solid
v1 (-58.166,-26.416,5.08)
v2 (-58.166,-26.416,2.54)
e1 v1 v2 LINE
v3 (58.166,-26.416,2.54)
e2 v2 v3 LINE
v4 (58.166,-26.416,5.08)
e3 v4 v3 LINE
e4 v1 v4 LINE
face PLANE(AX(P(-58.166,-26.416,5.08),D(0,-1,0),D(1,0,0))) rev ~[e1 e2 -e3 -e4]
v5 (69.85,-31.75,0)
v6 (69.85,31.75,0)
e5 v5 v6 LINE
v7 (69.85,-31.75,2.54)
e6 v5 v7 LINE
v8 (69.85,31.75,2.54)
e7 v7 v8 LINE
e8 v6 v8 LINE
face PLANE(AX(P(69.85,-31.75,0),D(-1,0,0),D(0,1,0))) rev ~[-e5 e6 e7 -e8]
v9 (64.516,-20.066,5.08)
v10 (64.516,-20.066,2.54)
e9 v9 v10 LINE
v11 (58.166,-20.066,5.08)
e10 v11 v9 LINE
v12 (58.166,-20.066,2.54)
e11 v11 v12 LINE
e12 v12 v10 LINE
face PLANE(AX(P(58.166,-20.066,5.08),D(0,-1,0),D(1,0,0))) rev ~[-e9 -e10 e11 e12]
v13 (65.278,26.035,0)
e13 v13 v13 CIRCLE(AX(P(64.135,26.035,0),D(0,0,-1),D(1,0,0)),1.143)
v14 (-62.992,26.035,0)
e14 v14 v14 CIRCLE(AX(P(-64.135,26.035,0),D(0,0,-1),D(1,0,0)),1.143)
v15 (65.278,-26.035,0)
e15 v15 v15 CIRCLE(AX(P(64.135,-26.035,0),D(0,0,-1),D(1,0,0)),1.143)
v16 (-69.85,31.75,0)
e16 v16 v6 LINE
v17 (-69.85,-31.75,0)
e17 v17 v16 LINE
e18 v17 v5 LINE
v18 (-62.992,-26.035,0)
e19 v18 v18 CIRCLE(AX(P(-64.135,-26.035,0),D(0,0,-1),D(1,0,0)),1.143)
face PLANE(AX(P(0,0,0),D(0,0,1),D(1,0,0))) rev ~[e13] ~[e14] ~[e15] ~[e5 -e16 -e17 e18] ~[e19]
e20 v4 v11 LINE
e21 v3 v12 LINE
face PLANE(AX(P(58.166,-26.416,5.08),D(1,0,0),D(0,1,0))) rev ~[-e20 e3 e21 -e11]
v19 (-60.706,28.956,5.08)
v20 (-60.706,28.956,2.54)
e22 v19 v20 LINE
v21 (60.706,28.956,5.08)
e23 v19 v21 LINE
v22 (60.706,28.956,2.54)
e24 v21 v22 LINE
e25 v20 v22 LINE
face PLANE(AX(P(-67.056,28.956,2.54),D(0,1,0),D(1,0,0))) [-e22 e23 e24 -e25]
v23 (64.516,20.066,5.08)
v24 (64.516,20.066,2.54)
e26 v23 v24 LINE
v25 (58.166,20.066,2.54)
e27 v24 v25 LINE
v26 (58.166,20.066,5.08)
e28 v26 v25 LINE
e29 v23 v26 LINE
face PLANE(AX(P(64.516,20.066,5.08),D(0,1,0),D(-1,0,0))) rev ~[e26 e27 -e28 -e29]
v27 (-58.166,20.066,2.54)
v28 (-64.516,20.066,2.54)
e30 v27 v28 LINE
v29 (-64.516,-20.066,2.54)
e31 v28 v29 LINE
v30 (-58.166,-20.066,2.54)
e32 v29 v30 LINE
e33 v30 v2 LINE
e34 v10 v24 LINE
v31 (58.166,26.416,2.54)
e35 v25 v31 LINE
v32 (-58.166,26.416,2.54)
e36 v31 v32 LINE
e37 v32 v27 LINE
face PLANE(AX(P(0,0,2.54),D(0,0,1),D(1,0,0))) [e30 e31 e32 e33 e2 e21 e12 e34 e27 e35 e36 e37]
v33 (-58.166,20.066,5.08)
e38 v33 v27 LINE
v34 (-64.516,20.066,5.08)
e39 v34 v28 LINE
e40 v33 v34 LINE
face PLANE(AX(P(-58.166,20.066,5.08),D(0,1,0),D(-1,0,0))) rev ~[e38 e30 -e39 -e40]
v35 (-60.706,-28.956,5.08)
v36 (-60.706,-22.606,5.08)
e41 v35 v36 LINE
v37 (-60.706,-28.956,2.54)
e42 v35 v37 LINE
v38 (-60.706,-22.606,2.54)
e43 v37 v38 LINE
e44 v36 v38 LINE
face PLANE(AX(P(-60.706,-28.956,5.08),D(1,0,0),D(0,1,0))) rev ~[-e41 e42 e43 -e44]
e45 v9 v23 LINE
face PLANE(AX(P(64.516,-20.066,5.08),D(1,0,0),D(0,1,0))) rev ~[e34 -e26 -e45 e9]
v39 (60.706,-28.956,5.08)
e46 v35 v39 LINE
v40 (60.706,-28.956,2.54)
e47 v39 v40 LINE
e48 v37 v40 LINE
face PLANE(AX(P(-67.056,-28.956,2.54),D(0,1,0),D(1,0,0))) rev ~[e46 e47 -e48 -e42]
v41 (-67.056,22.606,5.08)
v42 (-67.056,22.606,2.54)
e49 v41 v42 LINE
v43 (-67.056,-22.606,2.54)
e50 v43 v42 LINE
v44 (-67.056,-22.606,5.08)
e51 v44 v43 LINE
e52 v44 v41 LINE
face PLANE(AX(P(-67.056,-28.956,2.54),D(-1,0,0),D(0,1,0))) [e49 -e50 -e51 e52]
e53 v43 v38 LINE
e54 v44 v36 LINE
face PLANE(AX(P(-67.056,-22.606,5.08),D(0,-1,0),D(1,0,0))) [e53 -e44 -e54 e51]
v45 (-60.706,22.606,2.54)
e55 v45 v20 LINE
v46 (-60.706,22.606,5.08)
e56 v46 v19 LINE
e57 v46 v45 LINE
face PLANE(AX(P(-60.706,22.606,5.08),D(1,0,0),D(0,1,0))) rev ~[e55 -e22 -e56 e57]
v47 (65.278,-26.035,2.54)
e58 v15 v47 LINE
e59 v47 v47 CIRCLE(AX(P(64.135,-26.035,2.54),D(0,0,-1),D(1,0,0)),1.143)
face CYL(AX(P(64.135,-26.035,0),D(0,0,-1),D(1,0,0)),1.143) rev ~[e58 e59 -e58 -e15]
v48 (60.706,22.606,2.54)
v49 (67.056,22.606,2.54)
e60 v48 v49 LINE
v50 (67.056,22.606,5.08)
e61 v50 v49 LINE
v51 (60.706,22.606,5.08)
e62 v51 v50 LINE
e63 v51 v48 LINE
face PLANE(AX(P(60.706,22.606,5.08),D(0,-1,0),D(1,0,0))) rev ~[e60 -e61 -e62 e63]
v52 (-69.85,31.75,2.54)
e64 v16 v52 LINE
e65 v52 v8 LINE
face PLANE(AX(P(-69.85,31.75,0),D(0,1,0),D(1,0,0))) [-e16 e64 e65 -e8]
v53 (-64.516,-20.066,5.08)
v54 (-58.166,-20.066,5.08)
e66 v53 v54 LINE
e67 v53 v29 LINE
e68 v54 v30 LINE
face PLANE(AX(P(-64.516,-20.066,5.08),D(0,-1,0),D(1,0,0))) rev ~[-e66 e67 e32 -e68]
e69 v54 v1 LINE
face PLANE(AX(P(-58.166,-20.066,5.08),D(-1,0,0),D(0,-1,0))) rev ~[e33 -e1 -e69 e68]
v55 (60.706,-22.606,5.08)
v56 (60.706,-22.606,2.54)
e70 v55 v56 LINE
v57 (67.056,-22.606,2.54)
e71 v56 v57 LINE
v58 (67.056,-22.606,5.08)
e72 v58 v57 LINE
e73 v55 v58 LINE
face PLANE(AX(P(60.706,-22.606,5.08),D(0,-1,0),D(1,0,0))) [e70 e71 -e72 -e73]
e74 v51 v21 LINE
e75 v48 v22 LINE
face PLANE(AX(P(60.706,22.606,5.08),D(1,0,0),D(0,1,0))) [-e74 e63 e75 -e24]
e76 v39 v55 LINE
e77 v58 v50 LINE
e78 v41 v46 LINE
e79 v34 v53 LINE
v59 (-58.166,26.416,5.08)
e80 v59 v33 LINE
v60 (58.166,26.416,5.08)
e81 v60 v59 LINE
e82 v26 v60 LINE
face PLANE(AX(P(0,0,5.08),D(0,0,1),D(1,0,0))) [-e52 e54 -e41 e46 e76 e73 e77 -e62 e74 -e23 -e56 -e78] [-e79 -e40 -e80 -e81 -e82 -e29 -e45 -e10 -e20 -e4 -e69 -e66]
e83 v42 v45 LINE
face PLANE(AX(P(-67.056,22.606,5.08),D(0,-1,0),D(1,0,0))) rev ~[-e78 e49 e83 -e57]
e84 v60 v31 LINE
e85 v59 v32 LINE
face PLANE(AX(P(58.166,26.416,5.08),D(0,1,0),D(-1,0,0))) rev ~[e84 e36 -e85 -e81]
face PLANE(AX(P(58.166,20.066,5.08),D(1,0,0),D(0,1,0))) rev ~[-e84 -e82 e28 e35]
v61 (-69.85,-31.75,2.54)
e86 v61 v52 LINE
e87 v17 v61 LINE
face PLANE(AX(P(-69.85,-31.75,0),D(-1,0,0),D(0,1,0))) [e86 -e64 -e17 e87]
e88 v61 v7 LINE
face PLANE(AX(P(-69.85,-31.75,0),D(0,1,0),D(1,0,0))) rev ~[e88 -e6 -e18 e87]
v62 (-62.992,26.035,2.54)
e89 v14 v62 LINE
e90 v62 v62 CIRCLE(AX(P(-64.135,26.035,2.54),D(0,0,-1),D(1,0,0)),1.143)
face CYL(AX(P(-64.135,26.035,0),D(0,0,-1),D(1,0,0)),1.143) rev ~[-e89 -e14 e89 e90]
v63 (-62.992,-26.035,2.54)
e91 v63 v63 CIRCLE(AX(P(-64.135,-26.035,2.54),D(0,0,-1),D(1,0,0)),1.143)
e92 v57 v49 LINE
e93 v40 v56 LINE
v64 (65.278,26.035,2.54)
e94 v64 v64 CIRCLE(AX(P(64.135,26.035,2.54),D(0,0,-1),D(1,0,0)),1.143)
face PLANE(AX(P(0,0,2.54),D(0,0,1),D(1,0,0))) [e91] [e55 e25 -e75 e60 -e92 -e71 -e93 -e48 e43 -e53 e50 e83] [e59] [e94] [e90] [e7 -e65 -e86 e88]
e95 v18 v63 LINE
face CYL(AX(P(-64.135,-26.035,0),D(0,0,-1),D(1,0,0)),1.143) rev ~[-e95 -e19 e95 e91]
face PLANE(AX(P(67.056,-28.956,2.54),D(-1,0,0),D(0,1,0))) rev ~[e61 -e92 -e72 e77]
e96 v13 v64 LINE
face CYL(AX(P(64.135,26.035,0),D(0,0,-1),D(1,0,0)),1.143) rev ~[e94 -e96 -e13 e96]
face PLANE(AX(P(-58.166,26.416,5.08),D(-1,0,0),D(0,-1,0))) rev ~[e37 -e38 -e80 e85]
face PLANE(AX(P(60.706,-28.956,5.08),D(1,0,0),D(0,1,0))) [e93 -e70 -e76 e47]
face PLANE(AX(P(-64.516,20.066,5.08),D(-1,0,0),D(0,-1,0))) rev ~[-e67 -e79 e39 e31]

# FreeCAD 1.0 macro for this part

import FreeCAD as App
import Part
import Sketcher
from FreeCAD import Vector
Q = App.Units.Quantity

doc = App.newDocument("Part")
body = doc.addObject("PartDesign::Body", "Body")

sketch1 = body.newObject("Sketcher::SketchObject", "Sketch")
sketch1.AttachmentSupport = (doc.getObject("XY_Plane"), [""])
sketch1.MapMode = "FlatFace"
sketch1.addGeometry(Part.LineSegment(Vector(-69.85, 31.75, 0), Vector(-69.85, -31.75, 0)), False)
sketch1.addGeometry(Part.LineSegment(Vector(-69.85, -31.75, 0), Vector(69.85, -31.75, 0)), False)
sketch1.addGeometry(Part.LineSegment(Vector(69.85, -31.75, 0), Vector(69.85, 31.75, 0)), False)
sketch1.addGeometry(Part.LineSegment(Vector(69.85, 31.75, 0), Vector(-69.85, 31.75, 0)), False)
sketch1.addConstraint(Sketcher.Constraint("Coincident", 0, 2, 1, 1))
sketch1.addConstraint(Sketcher.Constraint("Coincident", 1, 2, 2, 1))
sketch1.addConstraint(Sketcher.Constraint("Coincident", 2, 2, 3, 1))
sketch1.addConstraint(Sketcher.Constraint("Coincident", 3, 2, 0, 1))
sketch1.addConstraint(Sketcher.Constraint("Vertical", 0))
sketch1.addConstraint(Sketcher.Constraint("Horizontal", 1))
sketch1.addConstraint(Sketcher.Constraint("Vertical", 2))
sketch1.addConstraint(Sketcher.Constraint("Horizontal", 3))
sketch1.addConstraint(Sketcher.Constraint("Symmetric", 0, 2, 2, 2, -1, 1))
sketch1.addConstraint(Sketcher.Constraint("DistanceX", 1, 1, 1, 2, Q("5.5 in")))
sketch1.addConstraint(Sketcher.Constraint("DistanceY", 0, 2, 0, 1, Q("2.5 in")))
pad1 = body.newObject("PartDesign::Pad", "Pad")
pad1.Profile = sketch1
pad1.Length = Q("0.1 in")

sketch2 = body.newObject("Sketcher::SketchObject", "Sketch001")
sketch2.AttachmentSupport = (doc.getObject("XY_Plane"), [""])
sketch2.MapMode = "FlatFace"
sketch2.AttachmentOffset = App.Placement(Vector(0, 0, 0.1 * 25.4), App.Rotation())
sketch2.addGeometry(Part.LineSegment(Vector(-67.056, 28.956, 0), Vector(-67.056, -28.956, 0)), False)
sketch2.addGeometry(Part.LineSegment(Vector(-67.056, -28.956, 0), Vector(67.056, -28.956, 0)), False)
sketch2.addGeometry(Part.LineSegment(Vector(67.056, -28.956, 0), Vector(67.056, 28.956, 0)), False)
sketch2.addGeometry(Part.LineSegment(Vector(67.056, 28.956, 0), Vector(-67.056, 28.956, 0)), False)
sketch2.addConstraint(Sketcher.Constraint("Coincident", 0, 2, 1, 1))
sketch2.addConstraint(Sketcher.Constraint("Coincident", 1, 2, 2, 1))
sketch2.addConstraint(Sketcher.Constraint("Coincident", 2, 2, 3, 1))
sketch2.addConstraint(Sketcher.Constraint("Coincident", 3, 2, 0, 1))
sketch2.addConstraint(Sketcher.Constraint("Vertical", 0))
sketch2.addConstraint(Sketcher.Constraint("Horizontal", 1))
sketch2.addConstraint(Sketcher.Constraint("Vertical", 2))
sketch2.addConstraint(Sketcher.Constraint("Horizontal", 3))
sketch2.addConstraint(Sketcher.Constraint("Symmetric", 0, 2, 2, 2, -1, 1))
sketch2.addConstraint(Sketcher.Constraint("DistanceX", 1, 1, 1, 2, Q("5.28 in")))
sketch2.addConstraint(Sketcher.Constraint("DistanceY", 0, 2, 0, 1, Q("2.28 in")))
pad2 = body.newObject("PartDesign::Pad", "Pad001")
pad2.Profile = sketch2
pad2.Length = Q("0.1 in")

sketch3 = body.newObject("Sketcher::SketchObject", "Sketch002")
sketch3.AttachmentSupport = (doc.getObject("XY_Plane"), [""])
sketch3.MapMode = "FlatFace"
sketch3.AttachmentOffset = App.Placement(Vector(0, 0, 0.2 * 25.4), App.Rotation())
sketch3.addGeometry(Part.LineSegment(Vector(-67.056, 28.956, 0), Vector(-67.056, 22.606, 0)), False)
sketch3.addGeometry(Part.LineSegment(Vector(-67.056, 22.606, 0), Vector(-60.706, 22.606, 0)), False)
sketch3.addGeometry(Part.LineSegment(Vector(-60.706, 22.606, 0), Vector(-60.706, 28.956, 0)), False)
sketch3.addGeometry(Part.LineSegment(Vector(-60.706, 28.956, 0), Vector(-67.056, 28.956, 0)), False)
sketch3.addGeometry(Part.LineSegment(Vector(60.706, 28.956, 0), Vector(60.706, 22.606, 0)), False)
sketch3.addGeometry(Part.LineSegment(Vector(60.706, 22.606, 0), Vector(67.056, 22.606, 0)), False)
sketch3.addGeometry(Part.LineSegment(Vector(67.056, 22.606, 0), Vector(67.056, 28.956, 0)), False)
sketch3.addGeometry(Part.LineSegment(Vector(67.056, 28.956, 0), Vector(60.706, 28.956, 0)), False)
sketch3.addGeometry(Part.LineSegment(Vector(-67.056, -22.606, 0), Vector(-67.056, -28.956, 0)), False)
sketch3.addGeometry(Part.LineSegment(Vector(-67.056, -28.956, 0), Vector(-60.706, -28.956, 0)), False)
sketch3.addGeometry(Part.LineSegment(Vector(-60.706, -28.956, 0), Vector(-60.706, -22.606, 0)), False)
sketch3.addGeometry(Part.LineSegment(Vector(-60.706, -22.606, 0), Vector(-67.056, -22.606, 0)), False)
sketch3.addGeometry(Part.LineSegment(Vector(60.706, -22.606, 0), Vector(60.706, -28.956, 0)), False)
sketch3.addGeometry(Part.LineSegment(Vector(60.706, -28.956, 0), Vector(67.056, -28.956, 0)), False)
sketch3.addGeometry(Part.LineSegment(Vector(67.056, -28.956, 0), Vector(67.056, -22.606, 0)), False)
sketch3.addGeometry(Part.LineSegment(Vector(67.056, -22.606, 0), Vector(60.706, -22.606, 0)), False)
sketch3.addConstraint(Sketcher.Constraint("Coincident", 0, 2, 1, 1))
sketch3.addConstraint(Sketcher.Constraint("Coincident", 1, 2, 2, 1))
sketch3.addConstraint(Sketcher.Constraint("Coincident", 2, 2, 3, 1))
sketch3.addConstraint(Sketcher.Constraint("Coincident", 3, 2, 0, 1))
sketch3.addConstraint(Sketcher.Constraint("Coincident", 4, 2, 5, 1))
sketch3.addConstraint(Sketcher.Constraint("Coincident", 5, 2, 6, 1))
sketch3.addConstraint(Sketcher.Constraint("Coincident", 6, 2, 7, 1))
sketch3.addConstraint(Sketcher.Constraint("Coincident", 7, 2, 4, 1))
sketch3.addConstraint(Sketcher.Constraint("Coincident", 8, 2, 9, 1))
sketch3.addConstraint(Sketcher.Constraint("Coincident", 9, 2, 10, 1))
sketch3.addConstraint(Sketcher.Constraint("Coincident", 10, 2, 11, 1))
sketch3.addConstraint(Sketcher.Constraint("Coincident", 11, 2, 8, 1))
sketch3.addConstraint(Sketcher.Constraint("Coincident", 12, 2, 13, 1))
sketch3.addConstraint(Sketcher.Constraint("Coincident", 13, 2, 14, 1))
sketch3.addConstraint(Sketcher.Constraint("Coincident", 14, 2, 15, 1))
sketch3.addConstraint(Sketcher.Constraint("Coincident", 15, 2, 12, 1))
sketch3.addConstraint(Sketcher.Constraint("Vertical", 0))
sketch3.addConstraint(Sketcher.Constraint("Horizontal", 1))
sketch3.addConstraint(Sketcher.Constraint("Vertical", 2))
sketch3.addConstraint(Sketcher.Constraint("Horizontal", 3))
sketch3.addConstraint(Sketcher.Constraint("Vertical", 4))
sketch3.addConstraint(Sketcher.Constraint("Horizontal", 5))
sketch3.addConstraint(Sketcher.Constraint("Vertical", 6))
sketch3.addConstraint(Sketcher.Constraint("Horizontal", 7))
sketch3.addConstraint(Sketcher.Constraint("Vertical", 8))
sketch3.addConstraint(Sketcher.Constraint("Horizontal", 9))
sketch3.addConstraint(Sketcher.Constraint("Vertical", 10))
sketch3.addConstraint(Sketcher.Constraint("Horizontal", 11))
sketch3.addConstraint(Sketcher.Constraint("Vertical", 12))
sketch3.addConstraint(Sketcher.Constraint("Horizontal", 13))
sketch3.addConstraint(Sketcher.Constraint("Vertical", 14))
sketch3.addConstraint(Sketcher.Constraint("Horizontal", 15))
sketch3.addConstraint(Sketcher.Constraint("Symmetric", 6, 2, 8, 2, -1, 1))
sketch3.addConstraint(Sketcher.Constraint("Symmetric", 4, 2, 10, 2, -1, 1))
sketch3.addConstraint(Sketcher.Constraint("Symmetric", 2, 2, 12, 2, -1, 1))
sketch3.addConstraint(Sketcher.Constraint("Symmetric", 0, 2, 14, 2, -1, 1))
sketch3.addConstraint(Sketcher.Constraint("Symmetric", 1, 2, 4, 2, -2))
sketch3.addConstraint(Sketcher.Constraint("Symmetric", 3, 2, 6, 2, -2))
sketch3.addConstraint(Sketcher.Constraint("Equal", 15, 0))
sketch3.addConstraint(Sketcher.Constraint("DistanceX", 1, 1, 1, 2, Q("0.25 in")))
sketch3.addConstraint(Sketcher.Constraint("DistanceX", 0, 2, -1, 1, Q("2.64 in")))
sketch3.addConstraint(Sketcher.Constraint("DistanceY", -1, 1, 0, 2, Q("0.89 in")))
pocket1 = body.newObject("PartDesign::Pocket", "Pocket")
pocket1.Profile = sketch3
pocket1.Length = Q("0.1 in")

sketch4 = body.newObject("Sketcher::SketchObject", "Sketch003")
sketch4.AttachmentSupport = (doc.getObject("XY_Plane"), [""])
sketch4.MapMode = "FlatFace"
sketch4.AttachmentOffset = App.Placement(Vector(0, 0, 0.2 * 25.4), App.Rotation())
sketch4.addGeometry(Part.LineSegment(Vector(64.516, 20.066, 0), Vector(58.166, 20.066, 0)), False)
sketch4.addGeometry(Part.LineSegment(Vector(58.166, 20.066, 0), Vector(58.166, 26.416, 0)), False)
sketch4.addGeometry(Part.LineSegment(Vector(58.166, 26.416, 0), Vector(-58.166, 26.416, 0)), False)
sketch4.addGeometry(Part.LineSegment(Vector(-58.166, 26.416, 0), Vector(-58.166, 20.066, 0)), False)
sketch4.addGeometry(Part.LineSegment(Vector(-58.166, 20.066, 0), Vector(-64.516, 20.066, 0)), False)
sketch4.addGeometry(Part.LineSegment(Vector(-64.516, 20.066, 0), Vector(-64.516, -20.066, 0)), False)
sketch4.addGeometry(Part.LineSegment(Vector(-64.516, -20.066, 0), Vector(-58.166, -20.066, 0)), False)
sketch4.addGeometry(Part.LineSegment(Vector(-58.166, -20.066, 0), Vector(-58.166, -26.416, 0)), False)
sketch4.addGeometry(Part.LineSegment(Vector(-58.166, -26.416, 0), Vector(58.166, -26.416, 0)), False)
sketch4.addGeometry(Part.LineSegment(Vector(58.166, -26.416, 0), Vector(58.166, -20.066, 0)), False)
sketch4.addGeometry(Part.LineSegment(Vector(58.166, -20.066, 0), Vector(64.516, -20.066, 0)), False)
sketch4.addGeometry(Part.LineSegment(Vector(64.516, -20.066, 0), Vector(64.516, 20.066, 0)), False)
sketch4.addConstraint(Sketcher.Constraint("Coincident", 0, 2, 1, 1))
sketch4.addConstraint(Sketcher.Constraint("Coincident", 1, 2, 2, 1))
sketch4.addConstraint(Sketcher.Constraint("Coincident", 2, 2, 3, 1))
sketch4.addConstraint(Sketcher.Constraint("Coincident", 3, 2, 4, 1))
sketch4.addConstraint(Sketcher.Constraint("Coincident", 4, 2, 5, 1))
sketch4.addConstraint(Sketcher.Constraint("Coincident", 5, 2, 6, 1))
sketch4.addConstraint(Sketcher.Constraint("Coincident", 6, 2, 7, 1))
sketch4.addConstraint(Sketcher.Constraint("Coincident", 7, 2, 8, 1))
sketch4.addConstraint(Sketcher.Constraint("Coincident", 8, 2, 9, 1))
sketch4.addConstraint(Sketcher.Constraint("Coincident", 9, 2, 10, 1))
sketch4.addConstraint(Sketcher.Constraint("Coincident", 10, 2, 11, 1))
sketch4.addConstraint(Sketcher.Constraint("Coincident", 11, 2, 0, 1))
sketch4.addConstraint(Sketcher.Constraint("Horizontal", 0))
sketch4.addConstraint(Sketcher.Constraint("Vertical", 1))
sketch4.addConstraint(Sketcher.Constraint("Horizontal", 2))
sketch4.addConstraint(Sketcher.Constraint("Vertical", 3))
sketch4.addConstraint(Sketcher.Constraint("Horizontal", 4))
sketch4.addConstraint(Sketcher.Constraint("Vertical", 5))
sketch4.addConstraint(Sketcher.Constraint("Horizontal", 6))
sketch4.addConstraint(Sketcher.Constraint("Vertical", 7))
sketch4.addConstraint(Sketcher.Constraint("Horizontal", 8))
sketch4.addConstraint(Sketcher.Constraint("Vertical", 9))
sketch4.addConstraint(Sketcher.Constraint("Horizontal", 10))
sketch4.addConstraint(Sketcher.Constraint("Vertical", 11))
sketch4.addConstraint(Sketcher.Constraint("Symmetric", 0, 2, 6, 2, -1, 1))
sketch4.addConstraint(Sketcher.Constraint("Symmetric", 2, 2, 8, 2, -1, 1))
sketch4.addConstraint(Sketcher.Constraint("Symmetric", 4, 2, 10, 2, -1, 1))
sketch4.addConstraint(Sketcher.Constraint("Symmetric", 0, 2, 3, 2, -2))
sketch4.addConstraint(Sketcher.Constraint("Equal", 10, 1))
sketch4.addConstraint(Sketcher.Constraint("DistanceX", 0, 2, 0, 1, Q("0.25 in")))
sketch4.addConstraint(Sketcher.Constraint("DistanceX", 2, 2, 2, 1, Q("4.58 in")))
sketch4.addConstraint(Sketcher.Constraint("DistanceY", 5, 2, 5, 1, Q("1.58 in")))
pocket2 = body.newObject("PartDesign::Pocket", "Pocket001")
pocket2.Profile = sketch4
pocket2.Length = Q("0.1 in")

sketch5 = body.newObject("Sketcher::SketchObject", "Sketch004")
sketch5.AttachmentSupport = (doc.getObject("XY_Plane"), [""])
sketch5.MapMode = "FlatFace"
sketch5.addGeometry(Part.Circle(Vector(64.135, -26.035, 0), Vector(0, 0, 1), 1.143), False)
sketch5.addGeometry(Part.Circle(Vector(-64.135, -26.035, 0), Vector(0, 0, 1), 1.143), False)
sketch5.addGeometry(Part.Circle(Vector(64.135, 26.035, 0), Vector(0, 0, 1), 1.143), False)
sketch5.addGeometry(Part.Circle(Vector(-64.135, 26.035, 0), Vector(0, 0, 1), 1.143), False)
sketch5.addConstraint(Sketcher.Constraint("Equal", 0, 1))
sketch5.addConstraint(Sketcher.Constraint("Equal", 1, 2))
sketch5.addConstraint(Sketcher.Constraint("Equal", 2, 3))
sketch5.addConstraint(Sketcher.Constraint("Symmetric", 1, 3, 2, 3, -1, 1))
sketch5.addConstraint(Sketcher.Constraint("Symmetric", 0, 3, 3, 3, -1, 1))
sketch5.addConstraint(Sketcher.Constraint("Symmetric", 0, 3, 1, 3, -2))
sketch5.addConstraint(Sketcher.Constraint("Diameter", 0, Q("0.09 in")))
sketch5.addConstraint(Sketcher.Constraint("DistanceX", 1, 3, 0, 3, Q("5.05 in")))
sketch5.addConstraint(Sketcher.Constraint("DistanceY", 0, 3, 2, 3, Q("2.05 in")))
pocket3 = body.newObject("PartDesign::Pocket", "Pocket002")
pocket3.Profile = sketch5
pocket3.Type = "ThroughAll"
pocket3.Reversed = True

doc.recompute()
